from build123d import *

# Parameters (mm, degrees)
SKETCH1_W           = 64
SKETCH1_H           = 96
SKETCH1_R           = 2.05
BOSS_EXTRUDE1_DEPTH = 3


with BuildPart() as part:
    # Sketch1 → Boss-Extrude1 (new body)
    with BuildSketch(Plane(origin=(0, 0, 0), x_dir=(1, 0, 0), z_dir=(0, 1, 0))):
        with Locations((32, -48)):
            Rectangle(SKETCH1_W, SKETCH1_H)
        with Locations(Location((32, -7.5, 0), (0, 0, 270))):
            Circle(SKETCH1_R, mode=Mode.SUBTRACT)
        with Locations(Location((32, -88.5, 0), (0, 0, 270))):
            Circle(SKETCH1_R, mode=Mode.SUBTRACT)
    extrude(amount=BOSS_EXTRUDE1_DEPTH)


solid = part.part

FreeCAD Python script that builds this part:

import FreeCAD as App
import Part
import Sketcher

V = App.Vector

doc = App.newDocument("Part")
body = doc.addObject("PartDesign::Body", "Body")

# Sketch on XZ plane
sketch1 = body.newObject("Sketcher::SketchObject", "Sketch")
sketch1.AttachmentSupport = (doc.getObject("XZ_Plane"), [""])
sketch1.MapMode = "FlatFace"
sketch1.addGeometry([
    Part.LineSegment(V(0, 0, 0), V(0, 96, 0)),  # 0
    Part.LineSegment(V(0, 96, 0), V(64, 96, 0)),  # 1
    Part.LineSegment(V(64, 96, 0), V(64, 0, 0)),  # 2
    Part.LineSegment(V(64, 0, 0), V(0, 0, 0)),  # 3
    Part.Circle(V(32, 88.5, 0), V(0, 0, 1), 2),  # 4
    Part.Circle(V(32, 7.5, 0), V(0, 0, 1), 2),  # 5
], False)
sketch1.addConstraint([
    Sketcher.Constraint("Coincident", 0, 2, 1, 1),
    Sketcher.Constraint("Coincident", 1, 2, 2, 1),
    Sketcher.Constraint("Coincident", 2, 2, 3, 1),
    Sketcher.Constraint("Coincident", 3, 2, 0, 1),
    Sketcher.Constraint("Vertical", 0),
    Sketcher.Constraint("Horizontal", 1),
    Sketcher.Constraint("Vertical", 2),
    Sketcher.Constraint("Horizontal", 3),
    Sketcher.Constraint("Coincident", 3, 2, -1, 1),
    Sketcher.Constraint("Equal", 4, 5),
    Sketcher.Constraint("Vertical", 4, 3, 5, 3),
    Sketcher.Constraint("Diameter", 4, 4.1),
    Sketcher.Constraint("DistanceX", 1, 1, 1, 2, 64.0),
    Sketcher.Constraint("DistanceY", 0, 1, 0, 2, 96.0),
    Sketcher.Constraint("DistanceX", -1, 1, 4, 3, 32.0),
    Sketcher.Constraint("DistanceY", 5, 3, 4, 3, 81.0),
    Sketcher.Constraint("DistanceY", -1, 1, 4, 3, 88.5),
])
pad1 = body.newObject("PartDesign::Pad", "Pad")
pad1.Profile = sketch1
pad1.Length = 3
pad1.Reversed = True

doc.recompute()
